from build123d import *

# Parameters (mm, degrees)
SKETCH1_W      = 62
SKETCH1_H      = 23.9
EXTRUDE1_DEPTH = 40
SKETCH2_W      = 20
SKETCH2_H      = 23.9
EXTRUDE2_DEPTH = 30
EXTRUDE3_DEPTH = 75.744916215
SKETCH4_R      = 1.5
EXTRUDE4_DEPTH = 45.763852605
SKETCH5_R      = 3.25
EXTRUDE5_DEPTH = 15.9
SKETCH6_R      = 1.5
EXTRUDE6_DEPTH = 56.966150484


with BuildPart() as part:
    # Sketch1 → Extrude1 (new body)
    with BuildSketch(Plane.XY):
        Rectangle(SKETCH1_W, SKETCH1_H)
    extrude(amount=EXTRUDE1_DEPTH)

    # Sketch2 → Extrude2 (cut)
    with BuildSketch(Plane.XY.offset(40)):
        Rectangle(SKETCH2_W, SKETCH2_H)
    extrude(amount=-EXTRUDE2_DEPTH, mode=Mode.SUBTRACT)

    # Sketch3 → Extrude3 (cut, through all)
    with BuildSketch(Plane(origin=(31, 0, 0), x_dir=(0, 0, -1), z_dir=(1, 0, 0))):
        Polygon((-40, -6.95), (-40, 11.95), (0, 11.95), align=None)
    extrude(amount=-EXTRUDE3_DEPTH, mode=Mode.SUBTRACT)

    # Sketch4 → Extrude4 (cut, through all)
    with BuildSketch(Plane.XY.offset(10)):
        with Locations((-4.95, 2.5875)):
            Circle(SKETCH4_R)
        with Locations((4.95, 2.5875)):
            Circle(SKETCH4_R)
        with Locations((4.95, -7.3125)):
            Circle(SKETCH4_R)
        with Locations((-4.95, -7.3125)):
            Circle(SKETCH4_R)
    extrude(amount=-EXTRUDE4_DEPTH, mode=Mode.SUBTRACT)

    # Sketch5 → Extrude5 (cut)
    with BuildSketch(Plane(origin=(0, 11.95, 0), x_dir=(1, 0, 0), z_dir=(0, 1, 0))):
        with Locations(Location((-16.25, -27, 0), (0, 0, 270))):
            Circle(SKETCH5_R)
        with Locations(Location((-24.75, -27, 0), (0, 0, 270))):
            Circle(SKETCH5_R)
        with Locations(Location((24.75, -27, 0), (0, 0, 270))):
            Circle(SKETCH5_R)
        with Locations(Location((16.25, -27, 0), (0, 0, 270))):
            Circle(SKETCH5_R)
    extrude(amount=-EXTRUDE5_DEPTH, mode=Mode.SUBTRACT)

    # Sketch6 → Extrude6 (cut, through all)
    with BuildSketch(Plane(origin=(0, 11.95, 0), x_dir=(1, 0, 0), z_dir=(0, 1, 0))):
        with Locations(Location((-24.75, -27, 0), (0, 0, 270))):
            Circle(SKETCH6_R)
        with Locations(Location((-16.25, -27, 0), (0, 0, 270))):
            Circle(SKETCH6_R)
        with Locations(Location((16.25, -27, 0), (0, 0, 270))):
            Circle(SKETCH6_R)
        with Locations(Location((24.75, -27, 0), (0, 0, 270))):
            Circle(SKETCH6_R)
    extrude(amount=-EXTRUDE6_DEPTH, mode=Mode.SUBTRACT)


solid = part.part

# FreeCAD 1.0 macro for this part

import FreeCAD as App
import Part
import Sketcher
from FreeCAD import Vector
Q = App.Units.Quantity

doc = App.newDocument("Part")
body = doc.addObject("PartDesign::Body", "Body")

sketch1 = doc.addObject("Sketcher::SketchObject", "Sketch")
body.addObject(sketch1)
sketch1.AttachmentSupport = (doc.XY_Plane, [""])
sketch1.MapMode = "FlatFace"
sketch1.addGeometry([
    Part.LineSegment(Vector(-31, 12, 0), Vector(-31, -12, 0)),
    Part.LineSegment(Vector(-31, -12, 0), Vector(31, -12, 0)),
    Part.LineSegment(Vector(31, -12, 0), Vector(31, 12, 0)),
    Part.LineSegment(Vector(31, 12, 0), Vector(-31, 12, 0)),
], False)
sketch1.addConstraint([
    Sketcher.Constraint("Coincident", 0, 2, 1, 1),
    Sketcher.Constraint("Coincident", 1, 2, 2, 1),
    Sketcher.Constraint("Coincident", 2, 2, 3, 1),
    Sketcher.Constraint("Coincident", 3, 2, 0, 1),
    Sketcher.Constraint("Vertical", 0),
    Sketcher.Constraint("Horizontal", 1),
    Sketcher.Constraint("Vertical", 2),
    Sketcher.Constraint("Horizontal", 3),
    Sketcher.Constraint("Symmetric", 0, 2, 2, 2, -1, 1),
    Sketcher.Constraint("DistanceX", 1, 1, 1, 2, Q("62 mm")),
    Sketcher.Constraint("DistanceY", 0, 2, 0, 1, Q("23.9 mm")),
])
pad1 = doc.addObject("PartDesign::Pad", "Pad")
body.addObject(pad1)
pad1.Profile = sketch1
pad1.Length = 40

sketch2 = doc.addObject("Sketcher::SketchObject", "Sketch001")
body.addObject(sketch2)
sketch2.AttachmentSupport = (doc.XY_Plane, [""])
sketch2.MapMode = "FlatFace"
sketch2.AttachmentOffset = App.Placement(Vector(0, 0, 40), App.Rotation())
sketch2.addGeometry([
    Part.LineSegment(Vector(-10, 12, 0), Vector(-10, -12, 0)),
    Part.LineSegment(Vector(-10, -12, 0), Vector(10, -12, 0)),
    Part.LineSegment(Vector(10, -12, 0), Vector(10, 12, 0)),
    Part.LineSegment(Vector(10, 12, 0), Vector(-10, 12, 0)),
], False)
sketch2.addConstraint([
    Sketcher.Constraint("Coincident", 0, 2, 1, 1),
    Sketcher.Constraint("Coincident", 1, 2, 2, 1),
    Sketcher.Constraint("Coincident", 2, 2, 3, 1),
    Sketcher.Constraint("Coincident", 3, 2, 0, 1),
    Sketcher.Constraint("Vertical", 0),
    Sketcher.Constraint("Horizontal", 1),
    Sketcher.Constraint("Vertical", 2),
    Sketcher.Constraint("Horizontal", 3),
    Sketcher.Constraint("Symmetric", 0, 2, 2, 2, -1, 1),
    Sketcher.Constraint("DistanceX", 1, 1, 1, 2, Q("20 mm")),
    Sketcher.Constraint("DistanceY", 0, 2, 0, 1, Q("23.9 mm")),
])
pocket1 = doc.addObject("PartDesign::Pocket", "Pocket")
body.addObject(pocket1)
pocket1.Profile = sketch2
pocket1.Length = 30

sketch3 = doc.addObject("Sketcher::SketchObject", "Sketch002")
body.addObject(sketch3)
sketch3.AttachmentSupport = (doc.YZ_Plane, [""])
sketch3.MapMode = "FlatFace"
sketch3.AttachmentOffset = App.Placement(Vector(0, 0, 31), App.Rotation())
sketch3.addGeometry([
    Part.LineSegment(Vector(12, 40, 0), Vector(-7, 40, 0)),
    Part.LineSegment(Vector(-7, 40, 0), Vector(12, 0, 0)),
    Part.LineSegment(Vector(12, 0, 0), Vector(12, 40, 0)),
], False)
sketch3.addConstraint([
    Sketcher.Constraint("Coincident", 0, 2, 1, 1),
    Sketcher.Constraint("Coincident", 1, 2, 2, 1),
    Sketcher.Constraint("Coincident", 2, 2, 0, 1),
    Sketcher.Constraint("Horizontal", 0),
    Sketcher.Constraint("Vertical", 2),
    Sketcher.Constraint("PointOnObject", 1, 2, -1),
    Sketcher.Constraint("DistanceY", 2, 1, 2, 2, Q("40 mm")),
    Sketcher.Constraint("DistanceX", 0, 2, 0, 1, Q("18.9 mm")),
    Sketcher.Constraint("DistanceX", 0, 2, -1, 1, Q("6.95 mm")),
])
pocket2 = doc.addObject("PartDesign::Pocket", "Pocket001")
body.addObject(pocket2)
pocket2.Profile = sketch3
pocket2.Type = "ThroughAll"

sketch4 = doc.addObject("Sketcher::SketchObject", "Sketch003")
body.addObject(sketch4)
sketch4.AttachmentSupport = (doc.XY_Plane, [""])
sketch4.MapMode = "FlatFace"
sketch4.AttachmentOffset = App.Placement(Vector(0, 0, 10), App.Rotation())
sketch4.addGeometry([
    Part.Circle(Vector(-5, 2.6, 0), Vector(0, 0, 1), 1.5),
    Part.Circle(Vector(5, 2.6, 0), Vector(0, 0, 1), 1.5),
    Part.Circle(Vector(5, -7.3, 0), Vector(0, 0, 1), 1.5),
    Part.Circle(Vector(-5, -7.3, 0), Vector(0, 0, 1), 1.5),
], False)
sketch4.addConstraint([
    Sketcher.Constraint("Equal", 0, 1),
    Sketcher.Constraint("Equal", 1, 2),
    Sketcher.Constraint("Equal", 2, 3),
    Sketcher.Constraint("Symmetric", 0, 3, 1, 3, -2),
    Sketcher.Constraint("Symmetric", 2, 3, 3, 3, -2),
    Sketcher.Constraint("Vertical", 1, 3, 2, 3),
    Sketcher.Constraint("Diameter", 0, Q("3 mm")),
    Sketcher.Constraint("DistanceX", 0, 3, 1, 3, Q("9.9 mm")),
    Sketcher.Constraint("DistanceY", 2, 3, 1, 3, Q("9.9 mm")),
    Sketcher.Constraint("DistanceY", -1, 1, 0, 3, Q("2.5875 mm")),
])
pocket3 = doc.addObject("PartDesign::Pocket", "Pocket002")
body.addObject(pocket3)
pocket3.Profile = sketch4
pocket3.Type = "ThroughAll"

sketch5 = doc.addObject("Sketcher::SketchObject", "Sketch004")
body.addObject(sketch5)
sketch5.AttachmentSupport = (doc.XZ_Plane, [""])
sketch5.MapMode = "FlatFace"
sketch5.AttachmentOffset = App.Placement(Vector(0, 0, -11.95), App.Rotation())
sketch5.addGeometry([
    Part.Circle(Vector(-16.2, 27, 0), Vector(0, 0, 1), 3.2),
    Part.Circle(Vector(-24.8, 27, 0), Vector(0, 0, 1), 3.2),
    Part.Circle(Vector(24.8, 27, 0), Vector(0, 0, 1), 3.2),
    Part.Circle(Vector(16.2, 27, 0), Vector(0, 0, 1), 3.2),
], False)
sketch5.addConstraint([
    Sketcher.Constraint("Equal", 0, 1),
    Sketcher.Constraint("Equal", 1, 2),
    Sketcher.Constraint("Equal", 2, 3),
    Sketcher.Constraint("Symmetric", 1, 3, 2, 3, -2),
    Sketcher.Constraint("Symmetric", 0, 3, 3, 3, -2),
    Sketcher.Constraint("Horizontal", 0, 3, 1, 3),
    Sketcher.Constraint("Diameter", 0, Q("6.5 mm")),
    Sketcher.Constraint("DistanceY", -1, 1, 0, 3, Q("27 mm")),
    Sketcher.Constraint("DistanceX", 0, 3, 2, 3, Q("41 mm")),
    Sketcher.Constraint("DistanceX", 1, 3, 0, 3, Q("8.5 mm")),
])
pocket4 = doc.addObject("PartDesign::Pocket", "Pocket003")
body.addObject(pocket4)
pocket4.Profile = sketch5
pocket4.Length = 15.9
pocket4.Reversed = True

sketch6 = doc.addObject("Sketcher::SketchObject", "Sketch005")
body.addObject(sketch6)
sketch6.AttachmentSupport = (doc.XZ_Plane, [""])
sketch6.MapMode = "FlatFace"
sketch6.AttachmentOffset = App.Placement(Vector(0, 0, -11.95), App.Rotation())
sketch6.addGeometry([
    Part.Circle(Vector(-24.8, 27, 0), Vector(0, 0, 1), 1.5),
    Part.Circle(Vector(-16.2, 27, 0), Vector(0, 0, 1), 1.5),
    Part.Circle(Vector(16.2, 27, 0), Vector(0, 0, 1), 1.5),
    Part.Circle(Vector(24.8, 27, 0), Vector(0, 0, 1), 1.5),
], False)
sketch6.addConstraint([
    Sketcher.Constraint("Equal", 0, 1),
    Sketcher.Constraint("Equal", 1, 2),
    Sketcher.Constraint("Equal", 2, 3),
    Sketcher.Constraint("Symmetric", 1, 3, 2, 3, -2),
    Sketcher.Constraint("Symmetric", 0, 3, 3, 3, -2),
    Sketcher.Constraint("Horizontal", 0, 3, 1, 3),
    Sketcher.Constraint("Diameter", 0, Q("3 mm")),
    Sketcher.Constraint("DistanceY", -1, 1, 0, 3, Q("27 mm")),
    Sketcher.Constraint("DistanceX", 0, 3, 2, 3, Q("41 mm")),
    Sketcher.Constraint("DistanceX", 0, 3, 1, 3, Q("8.5 mm")),
])
pocket5 = doc.addObject("PartDesign::Pocket", "Pocket004")
body.addObject(pocket5)
pocket5.Profile = sketch6
pocket5.Type = "ThroughAll"
pocket5.Reversed = True

doc.recompute()
